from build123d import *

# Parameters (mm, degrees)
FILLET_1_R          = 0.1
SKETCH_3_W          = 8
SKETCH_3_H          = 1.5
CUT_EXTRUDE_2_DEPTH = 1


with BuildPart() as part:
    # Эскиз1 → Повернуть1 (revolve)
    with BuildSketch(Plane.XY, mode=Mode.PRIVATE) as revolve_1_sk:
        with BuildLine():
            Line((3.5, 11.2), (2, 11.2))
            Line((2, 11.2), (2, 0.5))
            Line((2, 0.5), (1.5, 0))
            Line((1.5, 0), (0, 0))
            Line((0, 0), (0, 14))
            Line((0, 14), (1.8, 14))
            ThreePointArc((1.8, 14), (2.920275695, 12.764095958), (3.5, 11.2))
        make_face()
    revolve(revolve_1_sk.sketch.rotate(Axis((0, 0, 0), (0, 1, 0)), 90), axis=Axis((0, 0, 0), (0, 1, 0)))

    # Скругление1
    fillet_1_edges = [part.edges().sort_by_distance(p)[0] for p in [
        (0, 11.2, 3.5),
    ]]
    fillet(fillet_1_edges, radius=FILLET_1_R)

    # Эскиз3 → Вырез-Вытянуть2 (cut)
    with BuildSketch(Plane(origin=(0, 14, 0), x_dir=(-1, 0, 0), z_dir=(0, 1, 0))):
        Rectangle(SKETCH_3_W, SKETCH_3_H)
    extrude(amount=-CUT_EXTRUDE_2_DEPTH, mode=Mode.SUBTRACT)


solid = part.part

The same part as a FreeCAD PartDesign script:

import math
import FreeCAD as App
import Part
import Sketcher
from FreeCAD import Vector
Q = App.Units.Quantity


def edges_at(feature, points):
    """Names of the edges that pass closest to the given points."""
    edges = feature.Shape.Edges
    near = lambda p: min(range(len(edges)), key=lambda i: edges[i].distToShape(Part.Vertex(*p))[0])
    return sorted({f"Edge{near(p) + 1}" for p in points})

doc = App.newDocument("Part")
body = doc.addObject("PartDesign::Body", "Body")

# Sketch on XY plane
sketch1 = body.newObject("Sketcher::SketchObject", "Sketch")
sketch1.AttachmentSupport = (doc.getObject("XY_Plane"), [""])
sketch1.MapMode = "FlatFace"
sketch1.addGeometry([
    Part.LineSegment(Vector(2, 11.2, 0), Vector(3.5, 11.2, 0)),  # 0
    Part.ArcOfCircle(Part.Circle(Vector(-0.840789, 10.480592, 0), Vector(0, 0, 1), 4.4), math.radians(9.410211), math.radians(53.117252)),  # 1
    Part.LineSegment(Vector(1.8, 14, 0), Vector(0, 14, 0)),  # 2
    Part.LineSegment(Vector(0, 14, 0), Vector(0, 0, 0)),  # 3
    Part.LineSegment(Vector(0, 0, 0), Vector(1.5, 0, 0)),  # 4
    Part.LineSegment(Vector(1.5, 0, 0), Vector(2, 0.5, 0)),  # 5
    Part.LineSegment(Vector(2, 0.5, 0), Vector(2, 11.2, 0)),  # 6
], False)
sketch1.addConstraint([
    Sketcher.Constraint("Coincident", 0, 2, 1, 1),
    Sketcher.Constraint("Coincident", 1, 2, 2, 1),
    Sketcher.Constraint("Coincident", 2, 2, 3, 1),
    Sketcher.Constraint("Coincident", 3, 2, 4, 1),
    Sketcher.Constraint("Coincident", 4, 2, 5, 1),
    Sketcher.Constraint("Coincident", 5, 2, 6, 1),
    Sketcher.Constraint("Coincident", 6, 2, 0, 1),
    Sketcher.Constraint("Horizontal", 0),
    Sketcher.Constraint("Horizontal", 2),
    Sketcher.Constraint("Vertical", 3),
    Sketcher.Constraint("Horizontal", 4),
    Sketcher.Constraint("Vertical", 6),
    Sketcher.Constraint("Coincident", 3, 2, -1, 1),
    Sketcher.Constraint("Equal", 0, 4),
    Sketcher.Constraint("Radius", 1, Q("4.4 mm")),
    Sketcher.Constraint("DistanceY", 3, 2, 3, 1, Q("14 mm")),
    Sketcher.Constraint("Angle", 5, Q("45 deg")),
    Sketcher.Constraint("DistanceX", 0, 1, 0, 2, Q("1.5 mm")),
    Sketcher.Constraint("DistanceX", 2, 2, 2, 1, Q("1.8 mm")),
    Sketcher.Constraint("DistanceY", 6, 1, 6, 2, Q("10.7 mm")),
    Sketcher.Constraint("DistanceX", -1, 1, 5, 2, Q("2 mm")),
])
revolution = body.newObject("PartDesign::Revolution", "Revolution")
revolution.Profile = sketch1
revolution.ReferenceAxis = (sketch1, ["V_Axis"])
revolution.Angle = 360
doc.recompute()

fillet = body.newObject("PartDesign::Fillet", "Fillet")
fillet.Base = (revolution, edges_at(revolution, [(0, 11.2, 3.5)]))
fillet.Radius = 0.1

# Sketch on XZ plane
sketch2 = body.newObject("Sketcher::SketchObject", "Sketch001")
sketch2.AttachmentSupport = (doc.getObject("XZ_Plane"), [""])
sketch2.MapMode = "FlatFace"
sketch2.AttachmentOffset = App.Placement(Vector(0, 0, -14), App.Rotation())
sketch2.addGeometry([
    Part.LineSegment(Vector(4, 0.75, 0), Vector(4, -0.75, 0)),
    Part.LineSegment(Vector(4, -0.75, 0), Vector(-4, -0.75, 0)),
    Part.LineSegment(Vector(-4, -0.75, 0), Vector(-4, 0.75, 0)),
    Part.LineSegment(Vector(-4, 0.75, 0), Vector(4, 0.75, 0)),
], False)
sketch2.addConstraint([
    Sketcher.Constraint("Coincident", 0, 2, 1, 1),
    Sketcher.Constraint("Coincident", 1, 2, 2, 1),
    Sketcher.Constraint("Coincident", 2, 2, 3, 1),
    Sketcher.Constraint("Coincident", 3, 2, 0, 1),
    Sketcher.Constraint("Vertical", 0),
    Sketcher.Constraint("Horizontal", 1),
    Sketcher.Constraint("Vertical", 2),
    Sketcher.Constraint("Horizontal", 3),
    Sketcher.Constraint("Symmetric", 0, 2, 2, 2, -1, 1),
    Sketcher.Constraint("DistanceX", 1, 2, 1, 1, Q("8 mm")),
    Sketcher.Constraint("DistanceY", 0, 2, 0, 1, Q("1.5 mm")),
])
pocket1 = body.newObject("PartDesign::Pocket", "Pocket")
pocket1.Profile = sketch2
pocket1.Length = 1
pocket1.Reversed = True

doc.recompute()
